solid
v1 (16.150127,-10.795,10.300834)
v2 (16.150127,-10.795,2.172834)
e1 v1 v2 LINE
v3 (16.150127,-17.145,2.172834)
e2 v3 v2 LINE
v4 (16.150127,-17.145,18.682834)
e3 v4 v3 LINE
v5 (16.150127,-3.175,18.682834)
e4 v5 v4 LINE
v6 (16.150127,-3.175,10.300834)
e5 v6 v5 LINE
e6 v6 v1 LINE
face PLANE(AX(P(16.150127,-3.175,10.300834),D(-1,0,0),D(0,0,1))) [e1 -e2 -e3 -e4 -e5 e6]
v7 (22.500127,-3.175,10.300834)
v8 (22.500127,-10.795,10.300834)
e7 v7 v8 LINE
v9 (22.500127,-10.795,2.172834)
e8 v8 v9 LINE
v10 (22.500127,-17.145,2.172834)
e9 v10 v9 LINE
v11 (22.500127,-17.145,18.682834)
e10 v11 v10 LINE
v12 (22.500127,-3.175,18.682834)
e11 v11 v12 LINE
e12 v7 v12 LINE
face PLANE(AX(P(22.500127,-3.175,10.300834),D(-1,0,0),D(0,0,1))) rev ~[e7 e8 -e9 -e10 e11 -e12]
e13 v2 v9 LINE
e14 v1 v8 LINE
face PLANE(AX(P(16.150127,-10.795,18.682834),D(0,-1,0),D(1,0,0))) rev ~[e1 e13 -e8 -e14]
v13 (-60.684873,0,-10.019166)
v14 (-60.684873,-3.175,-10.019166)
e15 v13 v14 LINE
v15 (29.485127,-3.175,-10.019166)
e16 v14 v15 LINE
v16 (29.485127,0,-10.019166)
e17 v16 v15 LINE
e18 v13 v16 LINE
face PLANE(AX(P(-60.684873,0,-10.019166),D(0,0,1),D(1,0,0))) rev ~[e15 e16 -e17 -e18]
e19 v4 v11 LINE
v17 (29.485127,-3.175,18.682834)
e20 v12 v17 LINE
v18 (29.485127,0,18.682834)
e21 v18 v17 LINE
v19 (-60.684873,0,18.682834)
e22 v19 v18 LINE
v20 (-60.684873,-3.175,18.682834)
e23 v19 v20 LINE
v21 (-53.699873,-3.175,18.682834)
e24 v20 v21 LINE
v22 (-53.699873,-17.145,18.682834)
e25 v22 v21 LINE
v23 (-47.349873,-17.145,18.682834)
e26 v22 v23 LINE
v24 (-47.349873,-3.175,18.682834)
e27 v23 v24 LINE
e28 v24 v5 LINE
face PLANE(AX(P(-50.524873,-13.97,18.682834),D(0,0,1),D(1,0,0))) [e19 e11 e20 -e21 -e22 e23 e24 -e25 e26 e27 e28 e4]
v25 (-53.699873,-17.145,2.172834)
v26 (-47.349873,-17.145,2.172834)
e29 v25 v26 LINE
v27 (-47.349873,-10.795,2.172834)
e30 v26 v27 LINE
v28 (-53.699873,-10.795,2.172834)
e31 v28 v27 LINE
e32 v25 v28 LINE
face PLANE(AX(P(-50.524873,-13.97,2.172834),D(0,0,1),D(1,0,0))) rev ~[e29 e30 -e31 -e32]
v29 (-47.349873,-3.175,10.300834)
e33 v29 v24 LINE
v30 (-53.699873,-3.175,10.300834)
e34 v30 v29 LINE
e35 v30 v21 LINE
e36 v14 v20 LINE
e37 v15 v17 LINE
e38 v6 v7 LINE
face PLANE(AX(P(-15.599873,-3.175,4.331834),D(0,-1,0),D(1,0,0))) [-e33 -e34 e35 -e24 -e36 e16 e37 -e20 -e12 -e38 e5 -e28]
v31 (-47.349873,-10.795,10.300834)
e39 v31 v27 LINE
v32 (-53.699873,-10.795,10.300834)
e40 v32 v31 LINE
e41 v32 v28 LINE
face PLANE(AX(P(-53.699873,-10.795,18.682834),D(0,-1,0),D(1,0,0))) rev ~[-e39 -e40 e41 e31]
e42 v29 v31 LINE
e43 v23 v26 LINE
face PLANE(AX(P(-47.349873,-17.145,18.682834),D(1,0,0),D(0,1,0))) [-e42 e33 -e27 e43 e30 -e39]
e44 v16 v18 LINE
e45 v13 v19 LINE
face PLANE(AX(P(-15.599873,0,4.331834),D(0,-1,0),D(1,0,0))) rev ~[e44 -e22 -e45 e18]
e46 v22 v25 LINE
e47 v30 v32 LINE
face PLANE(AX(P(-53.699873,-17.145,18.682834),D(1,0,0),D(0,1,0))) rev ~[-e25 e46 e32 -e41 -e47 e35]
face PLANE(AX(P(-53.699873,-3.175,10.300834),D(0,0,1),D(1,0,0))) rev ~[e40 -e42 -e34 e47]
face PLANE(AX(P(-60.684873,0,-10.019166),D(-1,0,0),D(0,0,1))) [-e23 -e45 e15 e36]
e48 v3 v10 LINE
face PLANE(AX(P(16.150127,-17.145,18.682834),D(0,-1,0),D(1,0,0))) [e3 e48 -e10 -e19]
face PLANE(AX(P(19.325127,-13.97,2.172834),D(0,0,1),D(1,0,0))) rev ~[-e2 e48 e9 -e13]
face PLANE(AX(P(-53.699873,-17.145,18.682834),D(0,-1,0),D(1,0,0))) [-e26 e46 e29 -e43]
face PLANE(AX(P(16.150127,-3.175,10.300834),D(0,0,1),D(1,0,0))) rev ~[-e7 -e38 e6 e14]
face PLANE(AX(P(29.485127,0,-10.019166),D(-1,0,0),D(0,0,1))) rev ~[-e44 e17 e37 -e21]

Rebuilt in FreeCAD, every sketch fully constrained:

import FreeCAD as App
import Part
import Sketcher

V = App.Vector
Q = App.Units.Quantity


def add_polygon(sketch, points):
    """Adds a closed chain of lines whose ends are joined by coincident constraints."""
    first, n = sketch.GeometryCount, len(points)
    for a, b in zip(points, points[1:] + points[:1]):
        sketch.addGeometry(Part.LineSegment(App.Vector(*a, 0), App.Vector(*b, 0)), False)
    for i in range(n):
        sketch.addConstraint(Sketcher.Constraint("Coincident", first + i, 2, first + (i + 1) % n, 1))

doc = App.newDocument("Part")
body = doc.addObject("PartDesign::Body", "Body")

# Sketch on XZ plane
sketch1 = body.newObject("Sketcher::SketchObject", "Sketch")
sketch1.AttachmentSupport = (doc.getObject("XZ_Plane"), [""])
sketch1.MapMode = "FlatFace"
add_polygon(sketch1, [(-60.684873, 18.682834), (-60.684873, -10.019166), (29.485127, -10.019166), (29.485127, 18.682834)])  # lines 0-3
sketch1.addConstraint([
    Sketcher.Constraint("Vertical", 0),
    Sketcher.Constraint("Horizontal", 1),
    Sketcher.Constraint("Vertical", 2),
    Sketcher.Constraint("Horizontal", 3),
    Sketcher.Constraint("DistanceX", 1, 1, 1, 2, Q("3.55 in")),
    Sketcher.Constraint("DistanceY", 0, 2, 0, 1, Q("1.13 in")),
    Sketcher.Constraint("DistanceX", 0, 2, -1, 1, Q("60.684873 mm")),
    Sketcher.Constraint("DistanceY", 0, 2, -1, 1, Q("10.019166 mm")),
])
pad1 = body.newObject("PartDesign::Pad", "Pad")
pad1.Profile = sketch1
pad1.Length = Q("0.125 in")

# Sketch on XZ plane
sketch2 = body.newObject("Sketcher::SketchObject", "Sketch001")
sketch2.AttachmentSupport = (doc.getObject("XZ_Plane"), [""])
sketch2.MapMode = "FlatFace"
sketch2.AttachmentOffset = App.Placement(V(0, 0, 0.125 * 25.4), App.Rotation())
add_polygon(sketch2, [(-53.699873, 18.682834), (-53.699873, 10.300834), (-47.349873, 10.300834), (-47.349873, 18.682834)])  # lines 0-3
add_polygon(sketch2, [(16.150127, 18.682834), (16.150127, 10.300834), (22.500127, 10.300834), (22.500127, 18.682834)])  # lines 4-7
sketch2.addConstraint([
    Sketcher.Constraint("Vertical", 0),
    Sketcher.Constraint("Horizontal", 1),
    Sketcher.Constraint("Vertical", 2),
    Sketcher.Constraint("Horizontal", 3),
    Sketcher.Constraint("Vertical", 4),
    Sketcher.Constraint("Horizontal", 5),
    Sketcher.Constraint("Vertical", 6),
    Sketcher.Constraint("Horizontal", 7),
    Sketcher.Constraint("Horizontal", 1, 2, 4, 2),
    Sketcher.Constraint("Horizontal", 3, 2, 6, 2),
    Sketcher.Constraint("Equal", 3, 5),
    Sketcher.Constraint("DistanceX", 0, 2, 5, 2, Q("3 in")),
    Sketcher.Constraint("DistanceX", 1, 1, 1, 2, Q("0.25 in")),
    Sketcher.Constraint("DistanceY", 0, 2, 0, 1, Q("0.33 in")),
    Sketcher.Constraint("DistanceX", 0, 2, -1, 1, Q("53.699873 mm")),
    Sketcher.Constraint("DistanceY", -1, 1, 0, 2, Q("10.300834 mm")),
])
pad2 = body.newObject("PartDesign::Pad", "Pad001")
pad2.Profile = sketch2
pad2.Length = Q("0.3 in")

# Sketch on XY plane
sketch3 = body.newObject("Sketcher::SketchObject", "Sketch002")
sketch3.AttachmentSupport = (doc.getObject("XY_Plane"), [""])
sketch3.MapMode = "FlatFace"
sketch3.AttachmentOffset = App.Placement(V(0, 0, 18.682834), App.Rotation())
add_polygon(sketch3, [(-53.699873, -10.795), (-53.699873, -17.145), (-47.349873, -17.145), (-47.349873, -10.795)])  # lines 0-3
add_polygon(sketch3, [(16.150127, -10.795), (16.150127, -17.145), (22.500127, -17.145), (22.500127, -10.795)])  # lines 4-7
sketch3.addConstraint([
    Sketcher.Constraint("Vertical", 0),
    Sketcher.Constraint("Horizontal", 1),
    Sketcher.Constraint("Vertical", 2),
    Sketcher.Constraint("Horizontal", 3),
    Sketcher.Constraint("Vertical", 4),
    Sketcher.Constraint("Horizontal", 5),
    Sketcher.Constraint("Vertical", 6),
    Sketcher.Constraint("Horizontal", 7),
    Sketcher.Constraint("Horizontal", 1, 2, 4, 2),
    Sketcher.Constraint("Horizontal", 3, 2, 6, 2),
    Sketcher.Constraint("Equal", 3, 5),
    Sketcher.Constraint("Equal", 7, 0),
    Sketcher.Constraint("DistanceX", 0, 2, 5, 2, Q("3 in")),
    Sketcher.Constraint("DistanceX", 1, 1, 1, 2, Q("0.25 in")),
    Sketcher.Constraint("DistanceY", 0, 2, -1, 1, Q("0.675 in")),
    Sketcher.Constraint("DistanceX", 0, 2, -1, 1, Q("53.699873 mm")),
])
pad3 = body.newObject("PartDesign::Pad", "Pad002")
pad3.Profile = sketch3
pad3.Length = Q("0.65 in")
pad3.Reversed = True

doc.recompute()
